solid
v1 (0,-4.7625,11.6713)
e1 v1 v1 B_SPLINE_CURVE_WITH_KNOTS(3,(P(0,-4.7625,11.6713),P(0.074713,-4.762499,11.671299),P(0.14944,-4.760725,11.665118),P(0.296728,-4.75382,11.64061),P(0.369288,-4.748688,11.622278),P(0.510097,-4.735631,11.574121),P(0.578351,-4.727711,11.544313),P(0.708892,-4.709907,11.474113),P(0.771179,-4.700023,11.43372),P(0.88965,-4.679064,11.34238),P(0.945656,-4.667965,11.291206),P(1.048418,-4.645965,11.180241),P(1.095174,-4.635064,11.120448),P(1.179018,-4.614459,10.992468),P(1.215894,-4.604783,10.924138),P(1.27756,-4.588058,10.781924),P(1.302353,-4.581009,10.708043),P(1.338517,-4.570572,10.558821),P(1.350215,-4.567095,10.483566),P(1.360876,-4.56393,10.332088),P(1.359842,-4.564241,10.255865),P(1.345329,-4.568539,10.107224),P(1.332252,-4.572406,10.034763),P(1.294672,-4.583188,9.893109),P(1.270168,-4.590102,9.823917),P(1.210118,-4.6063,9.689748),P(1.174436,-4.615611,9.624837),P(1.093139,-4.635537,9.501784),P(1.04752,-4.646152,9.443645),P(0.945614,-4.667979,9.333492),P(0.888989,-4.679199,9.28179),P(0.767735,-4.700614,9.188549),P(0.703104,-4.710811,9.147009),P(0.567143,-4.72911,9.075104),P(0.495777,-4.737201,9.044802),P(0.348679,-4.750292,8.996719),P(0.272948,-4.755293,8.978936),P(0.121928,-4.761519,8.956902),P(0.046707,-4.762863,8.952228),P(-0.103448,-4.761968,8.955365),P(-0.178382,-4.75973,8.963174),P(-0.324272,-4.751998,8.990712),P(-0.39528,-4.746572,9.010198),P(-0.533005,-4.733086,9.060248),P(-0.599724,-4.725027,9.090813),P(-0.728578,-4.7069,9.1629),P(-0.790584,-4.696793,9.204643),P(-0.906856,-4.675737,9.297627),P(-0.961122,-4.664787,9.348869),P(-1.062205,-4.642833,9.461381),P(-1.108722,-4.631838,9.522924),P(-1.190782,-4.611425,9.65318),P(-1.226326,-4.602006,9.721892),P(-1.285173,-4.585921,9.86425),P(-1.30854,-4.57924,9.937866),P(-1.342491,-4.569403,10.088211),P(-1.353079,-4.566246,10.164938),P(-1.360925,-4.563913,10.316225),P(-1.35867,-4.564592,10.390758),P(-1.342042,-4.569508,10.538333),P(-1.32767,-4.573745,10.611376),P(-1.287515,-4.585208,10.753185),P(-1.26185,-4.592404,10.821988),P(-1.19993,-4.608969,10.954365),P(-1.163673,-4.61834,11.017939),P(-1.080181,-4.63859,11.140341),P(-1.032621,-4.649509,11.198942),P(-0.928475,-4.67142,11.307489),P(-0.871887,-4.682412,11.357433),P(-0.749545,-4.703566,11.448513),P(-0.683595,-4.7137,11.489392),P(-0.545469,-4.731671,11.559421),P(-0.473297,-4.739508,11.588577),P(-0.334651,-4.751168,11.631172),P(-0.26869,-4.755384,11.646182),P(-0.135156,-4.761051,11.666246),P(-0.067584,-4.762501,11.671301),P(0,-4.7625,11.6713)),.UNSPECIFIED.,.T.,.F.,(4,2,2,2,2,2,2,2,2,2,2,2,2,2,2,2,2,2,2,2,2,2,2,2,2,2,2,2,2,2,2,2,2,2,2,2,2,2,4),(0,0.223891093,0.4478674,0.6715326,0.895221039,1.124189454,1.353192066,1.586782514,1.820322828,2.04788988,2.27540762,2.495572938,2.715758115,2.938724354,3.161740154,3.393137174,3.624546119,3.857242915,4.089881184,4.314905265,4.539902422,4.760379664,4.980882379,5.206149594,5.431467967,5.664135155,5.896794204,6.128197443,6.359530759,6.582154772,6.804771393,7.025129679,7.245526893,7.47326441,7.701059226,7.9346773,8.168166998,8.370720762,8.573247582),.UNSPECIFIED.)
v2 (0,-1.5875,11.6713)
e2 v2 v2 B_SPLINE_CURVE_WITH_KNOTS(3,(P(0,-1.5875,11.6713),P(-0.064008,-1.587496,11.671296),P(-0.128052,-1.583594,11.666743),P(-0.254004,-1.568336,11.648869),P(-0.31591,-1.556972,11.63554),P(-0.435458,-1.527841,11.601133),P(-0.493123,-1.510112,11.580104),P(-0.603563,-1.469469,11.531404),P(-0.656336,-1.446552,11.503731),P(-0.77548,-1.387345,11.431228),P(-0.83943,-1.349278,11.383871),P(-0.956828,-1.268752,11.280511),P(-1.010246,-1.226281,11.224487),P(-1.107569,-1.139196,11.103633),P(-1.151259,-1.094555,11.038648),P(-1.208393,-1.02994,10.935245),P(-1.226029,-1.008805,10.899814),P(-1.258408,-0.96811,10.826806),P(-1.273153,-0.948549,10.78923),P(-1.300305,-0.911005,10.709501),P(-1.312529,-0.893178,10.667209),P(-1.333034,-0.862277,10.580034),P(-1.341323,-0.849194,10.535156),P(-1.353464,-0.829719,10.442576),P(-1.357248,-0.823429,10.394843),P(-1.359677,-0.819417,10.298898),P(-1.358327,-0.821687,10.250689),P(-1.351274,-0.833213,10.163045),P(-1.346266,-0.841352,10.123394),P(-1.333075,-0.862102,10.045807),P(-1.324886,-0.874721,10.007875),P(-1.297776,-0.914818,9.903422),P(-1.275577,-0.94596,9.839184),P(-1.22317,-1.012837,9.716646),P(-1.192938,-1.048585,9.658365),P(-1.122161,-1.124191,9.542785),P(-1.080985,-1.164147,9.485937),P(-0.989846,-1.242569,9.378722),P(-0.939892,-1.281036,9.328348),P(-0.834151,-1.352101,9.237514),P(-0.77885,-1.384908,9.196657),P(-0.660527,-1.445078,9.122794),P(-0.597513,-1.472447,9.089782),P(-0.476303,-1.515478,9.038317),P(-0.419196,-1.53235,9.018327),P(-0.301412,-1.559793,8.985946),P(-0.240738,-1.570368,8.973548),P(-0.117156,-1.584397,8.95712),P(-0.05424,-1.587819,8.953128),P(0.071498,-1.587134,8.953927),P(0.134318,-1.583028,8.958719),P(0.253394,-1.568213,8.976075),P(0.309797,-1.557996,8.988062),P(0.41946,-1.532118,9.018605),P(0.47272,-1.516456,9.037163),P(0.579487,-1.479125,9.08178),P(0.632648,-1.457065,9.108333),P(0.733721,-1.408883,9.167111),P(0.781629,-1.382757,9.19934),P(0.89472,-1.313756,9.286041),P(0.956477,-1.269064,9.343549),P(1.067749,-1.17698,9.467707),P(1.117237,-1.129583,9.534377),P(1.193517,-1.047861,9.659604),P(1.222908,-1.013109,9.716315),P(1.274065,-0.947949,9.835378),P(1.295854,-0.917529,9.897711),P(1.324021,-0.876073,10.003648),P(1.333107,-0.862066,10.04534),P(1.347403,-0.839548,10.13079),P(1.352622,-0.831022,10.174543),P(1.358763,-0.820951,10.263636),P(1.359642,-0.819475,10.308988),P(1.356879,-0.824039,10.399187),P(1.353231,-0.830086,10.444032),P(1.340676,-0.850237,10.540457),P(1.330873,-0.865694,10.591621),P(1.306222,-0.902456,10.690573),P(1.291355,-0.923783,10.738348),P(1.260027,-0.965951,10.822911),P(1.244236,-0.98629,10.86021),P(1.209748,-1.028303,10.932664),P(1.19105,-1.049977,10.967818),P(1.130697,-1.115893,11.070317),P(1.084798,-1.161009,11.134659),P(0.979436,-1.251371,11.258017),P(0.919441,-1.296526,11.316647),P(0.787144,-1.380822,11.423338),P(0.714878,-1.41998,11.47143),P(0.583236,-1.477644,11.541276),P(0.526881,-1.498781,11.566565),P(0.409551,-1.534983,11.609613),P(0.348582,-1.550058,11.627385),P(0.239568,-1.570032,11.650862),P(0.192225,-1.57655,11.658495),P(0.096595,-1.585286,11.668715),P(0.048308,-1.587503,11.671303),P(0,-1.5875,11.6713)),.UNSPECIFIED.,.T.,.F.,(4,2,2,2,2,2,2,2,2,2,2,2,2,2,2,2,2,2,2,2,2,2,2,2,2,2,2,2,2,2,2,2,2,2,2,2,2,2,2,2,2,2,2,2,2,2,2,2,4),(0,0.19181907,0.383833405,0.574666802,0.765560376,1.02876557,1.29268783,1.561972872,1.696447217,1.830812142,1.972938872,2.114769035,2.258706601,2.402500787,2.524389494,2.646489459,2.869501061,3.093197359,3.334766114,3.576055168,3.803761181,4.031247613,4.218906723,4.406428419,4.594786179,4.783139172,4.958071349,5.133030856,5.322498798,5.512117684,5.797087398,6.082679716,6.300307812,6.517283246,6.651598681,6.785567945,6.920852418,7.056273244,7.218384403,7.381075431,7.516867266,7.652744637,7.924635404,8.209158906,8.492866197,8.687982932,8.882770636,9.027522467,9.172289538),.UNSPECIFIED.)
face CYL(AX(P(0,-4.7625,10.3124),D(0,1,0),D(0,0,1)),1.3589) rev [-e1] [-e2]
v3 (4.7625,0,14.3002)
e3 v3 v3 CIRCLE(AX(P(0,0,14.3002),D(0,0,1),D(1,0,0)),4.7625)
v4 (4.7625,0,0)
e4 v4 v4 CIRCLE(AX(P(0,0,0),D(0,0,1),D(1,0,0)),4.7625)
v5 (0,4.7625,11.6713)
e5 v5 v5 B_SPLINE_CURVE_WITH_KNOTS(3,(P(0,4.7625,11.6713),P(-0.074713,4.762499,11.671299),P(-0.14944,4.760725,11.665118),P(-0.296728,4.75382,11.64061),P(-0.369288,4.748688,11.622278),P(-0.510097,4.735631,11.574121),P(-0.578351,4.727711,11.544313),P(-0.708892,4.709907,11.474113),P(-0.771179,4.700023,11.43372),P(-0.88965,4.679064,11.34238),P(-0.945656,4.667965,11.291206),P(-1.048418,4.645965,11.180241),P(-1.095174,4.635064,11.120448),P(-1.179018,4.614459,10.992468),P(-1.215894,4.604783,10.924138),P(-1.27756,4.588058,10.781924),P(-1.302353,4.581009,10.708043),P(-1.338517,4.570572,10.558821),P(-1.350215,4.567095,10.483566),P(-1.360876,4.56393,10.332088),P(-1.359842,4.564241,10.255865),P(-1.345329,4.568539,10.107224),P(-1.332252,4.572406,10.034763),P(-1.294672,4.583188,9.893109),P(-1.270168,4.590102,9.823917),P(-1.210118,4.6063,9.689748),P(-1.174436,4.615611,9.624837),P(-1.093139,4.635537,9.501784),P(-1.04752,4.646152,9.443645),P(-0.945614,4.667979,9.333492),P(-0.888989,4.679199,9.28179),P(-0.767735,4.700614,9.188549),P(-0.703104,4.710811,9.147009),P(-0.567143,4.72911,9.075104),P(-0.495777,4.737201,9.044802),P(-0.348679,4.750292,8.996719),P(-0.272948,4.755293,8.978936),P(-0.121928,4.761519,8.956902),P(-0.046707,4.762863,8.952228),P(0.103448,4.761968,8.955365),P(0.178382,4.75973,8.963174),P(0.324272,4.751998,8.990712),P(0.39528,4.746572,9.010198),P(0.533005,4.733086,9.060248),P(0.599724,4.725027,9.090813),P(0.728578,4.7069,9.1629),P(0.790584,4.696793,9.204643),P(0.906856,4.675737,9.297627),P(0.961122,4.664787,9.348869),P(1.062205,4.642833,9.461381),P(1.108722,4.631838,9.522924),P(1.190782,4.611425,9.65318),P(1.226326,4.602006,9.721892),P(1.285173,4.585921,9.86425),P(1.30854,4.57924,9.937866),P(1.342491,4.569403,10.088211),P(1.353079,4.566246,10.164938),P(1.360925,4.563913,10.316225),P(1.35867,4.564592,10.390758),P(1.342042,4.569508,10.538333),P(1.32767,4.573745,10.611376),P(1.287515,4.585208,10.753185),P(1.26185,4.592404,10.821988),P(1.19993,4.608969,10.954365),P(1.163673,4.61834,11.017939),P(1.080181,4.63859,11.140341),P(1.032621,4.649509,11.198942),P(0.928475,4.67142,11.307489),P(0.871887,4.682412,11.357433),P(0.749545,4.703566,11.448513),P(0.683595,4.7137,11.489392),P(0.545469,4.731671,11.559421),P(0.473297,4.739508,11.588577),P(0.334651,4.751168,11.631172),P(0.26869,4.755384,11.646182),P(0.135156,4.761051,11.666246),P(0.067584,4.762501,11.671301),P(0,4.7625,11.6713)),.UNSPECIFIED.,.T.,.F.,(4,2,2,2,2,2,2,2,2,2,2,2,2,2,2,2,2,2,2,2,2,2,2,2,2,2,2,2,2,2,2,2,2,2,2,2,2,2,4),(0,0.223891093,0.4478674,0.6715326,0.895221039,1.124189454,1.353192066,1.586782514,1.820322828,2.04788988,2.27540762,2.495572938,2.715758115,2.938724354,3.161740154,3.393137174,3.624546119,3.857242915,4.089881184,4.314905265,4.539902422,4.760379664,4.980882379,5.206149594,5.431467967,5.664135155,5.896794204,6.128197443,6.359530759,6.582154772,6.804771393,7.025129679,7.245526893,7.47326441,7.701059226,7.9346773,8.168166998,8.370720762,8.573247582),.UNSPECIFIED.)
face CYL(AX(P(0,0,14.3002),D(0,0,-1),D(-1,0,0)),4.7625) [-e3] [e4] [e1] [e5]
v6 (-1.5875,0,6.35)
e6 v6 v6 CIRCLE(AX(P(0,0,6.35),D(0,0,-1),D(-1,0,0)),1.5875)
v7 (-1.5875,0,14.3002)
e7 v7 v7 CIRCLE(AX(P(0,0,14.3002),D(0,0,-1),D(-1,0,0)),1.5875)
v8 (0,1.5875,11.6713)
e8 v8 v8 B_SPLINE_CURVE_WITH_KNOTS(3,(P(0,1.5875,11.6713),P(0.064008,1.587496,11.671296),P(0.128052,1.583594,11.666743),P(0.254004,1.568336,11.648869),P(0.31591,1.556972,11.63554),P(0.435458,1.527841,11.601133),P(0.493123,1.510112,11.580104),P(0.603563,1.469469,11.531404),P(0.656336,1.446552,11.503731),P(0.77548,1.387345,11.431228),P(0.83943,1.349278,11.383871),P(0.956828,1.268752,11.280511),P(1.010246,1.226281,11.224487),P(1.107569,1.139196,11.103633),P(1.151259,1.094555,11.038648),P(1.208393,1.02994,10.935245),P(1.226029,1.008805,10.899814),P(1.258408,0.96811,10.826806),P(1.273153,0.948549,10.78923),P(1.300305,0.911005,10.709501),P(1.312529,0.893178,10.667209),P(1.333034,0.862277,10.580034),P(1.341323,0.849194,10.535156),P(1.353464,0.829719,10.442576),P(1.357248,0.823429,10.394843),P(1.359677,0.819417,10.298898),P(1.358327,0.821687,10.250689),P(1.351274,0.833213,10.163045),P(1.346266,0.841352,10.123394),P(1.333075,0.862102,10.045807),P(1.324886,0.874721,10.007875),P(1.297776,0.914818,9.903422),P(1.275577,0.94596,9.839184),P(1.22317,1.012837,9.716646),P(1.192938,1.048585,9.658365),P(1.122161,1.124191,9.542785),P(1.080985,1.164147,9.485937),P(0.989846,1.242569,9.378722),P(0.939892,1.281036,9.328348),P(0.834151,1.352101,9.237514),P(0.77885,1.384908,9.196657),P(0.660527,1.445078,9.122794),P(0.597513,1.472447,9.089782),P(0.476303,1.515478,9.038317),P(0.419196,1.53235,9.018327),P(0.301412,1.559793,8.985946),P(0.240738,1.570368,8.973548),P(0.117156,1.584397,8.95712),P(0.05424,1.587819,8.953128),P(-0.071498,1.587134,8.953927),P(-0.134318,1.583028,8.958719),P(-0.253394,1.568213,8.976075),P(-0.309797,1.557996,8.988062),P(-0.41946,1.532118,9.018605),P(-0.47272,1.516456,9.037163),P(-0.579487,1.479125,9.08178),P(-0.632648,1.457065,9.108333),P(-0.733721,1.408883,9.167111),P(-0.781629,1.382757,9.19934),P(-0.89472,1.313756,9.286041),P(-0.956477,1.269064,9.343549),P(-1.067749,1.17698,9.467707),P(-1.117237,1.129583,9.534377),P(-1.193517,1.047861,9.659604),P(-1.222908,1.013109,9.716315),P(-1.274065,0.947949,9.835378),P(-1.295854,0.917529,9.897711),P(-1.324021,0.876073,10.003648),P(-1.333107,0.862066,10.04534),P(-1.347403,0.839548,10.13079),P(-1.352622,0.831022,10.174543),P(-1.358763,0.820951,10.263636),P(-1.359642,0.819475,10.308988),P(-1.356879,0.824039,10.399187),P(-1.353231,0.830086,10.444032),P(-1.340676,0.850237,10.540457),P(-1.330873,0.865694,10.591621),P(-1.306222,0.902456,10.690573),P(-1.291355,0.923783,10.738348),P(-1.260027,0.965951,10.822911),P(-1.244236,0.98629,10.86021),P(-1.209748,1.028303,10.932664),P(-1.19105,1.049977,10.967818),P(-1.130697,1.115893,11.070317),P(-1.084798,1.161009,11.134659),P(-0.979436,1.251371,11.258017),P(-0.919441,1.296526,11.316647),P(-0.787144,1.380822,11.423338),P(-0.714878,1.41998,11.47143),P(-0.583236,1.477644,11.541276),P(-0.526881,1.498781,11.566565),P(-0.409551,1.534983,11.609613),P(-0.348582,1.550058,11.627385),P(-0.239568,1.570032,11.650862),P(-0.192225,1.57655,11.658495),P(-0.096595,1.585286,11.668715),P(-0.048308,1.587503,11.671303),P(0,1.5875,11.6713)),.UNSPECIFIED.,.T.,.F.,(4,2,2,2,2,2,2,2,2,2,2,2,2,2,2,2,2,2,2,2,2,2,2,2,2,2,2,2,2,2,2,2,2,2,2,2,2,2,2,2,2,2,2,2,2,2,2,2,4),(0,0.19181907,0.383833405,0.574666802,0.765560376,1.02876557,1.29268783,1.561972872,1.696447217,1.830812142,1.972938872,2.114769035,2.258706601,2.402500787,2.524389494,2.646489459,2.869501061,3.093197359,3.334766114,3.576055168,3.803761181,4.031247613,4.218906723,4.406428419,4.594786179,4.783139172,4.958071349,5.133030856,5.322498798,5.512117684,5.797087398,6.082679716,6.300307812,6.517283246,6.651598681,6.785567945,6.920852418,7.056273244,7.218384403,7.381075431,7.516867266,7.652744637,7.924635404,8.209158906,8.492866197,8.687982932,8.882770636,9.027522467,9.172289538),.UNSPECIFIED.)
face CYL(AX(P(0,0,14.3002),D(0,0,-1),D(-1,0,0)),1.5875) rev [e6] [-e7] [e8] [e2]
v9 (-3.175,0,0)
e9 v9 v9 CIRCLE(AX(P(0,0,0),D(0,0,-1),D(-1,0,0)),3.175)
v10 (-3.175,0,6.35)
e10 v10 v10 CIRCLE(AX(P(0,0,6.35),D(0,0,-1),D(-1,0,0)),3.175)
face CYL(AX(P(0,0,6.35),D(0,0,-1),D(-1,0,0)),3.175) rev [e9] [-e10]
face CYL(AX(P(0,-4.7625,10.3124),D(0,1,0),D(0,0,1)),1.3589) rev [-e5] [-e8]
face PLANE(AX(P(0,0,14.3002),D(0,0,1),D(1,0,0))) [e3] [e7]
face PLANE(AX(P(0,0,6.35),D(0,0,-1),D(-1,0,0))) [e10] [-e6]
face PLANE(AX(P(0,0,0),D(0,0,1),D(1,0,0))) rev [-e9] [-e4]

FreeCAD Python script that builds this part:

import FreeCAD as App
import Part
import Sketcher
Q = App.Units.Quantity

doc = App.newDocument("Part")
body = doc.addObject("PartDesign::Body", "Body")

# Sketch on XY plane
sketch1 = body.newObject("Sketcher::SketchObject", "Sketch")
sketch1.AttachmentSupport = (doc.getObject("XY_Plane"), [""])
sketch1.MapMode = "FlatFace"
sketch1.addGeometry(Part.Circle(App.Vector(0, 0, 0), App.Vector(0, 0, 1), 4.8), False)
sketch1.addConstraint([
    Sketcher.Constraint("Coincident", 0, 3, -1, 1),
    Sketcher.Constraint("Diameter", 0, Q("0.375 in")),
])
pad1 = body.newObject("PartDesign::Pad", "Pad")
pad1.Profile = sketch1
pad1.Length = Q("0.563 in")

# Sketch on XY plane
sketch2 = body.newObject("Sketcher::SketchObject", "Sketch001")
sketch2.AttachmentSupport = (doc.getObject("XY_Plane"), [""])
sketch2.MapMode = "FlatFace"
sketch2.addGeometry(Part.Circle(App.Vector(0, 0, 0), App.Vector(0, 0, 1), 1.6), False)
sketch2.addConstraint([
    Sketcher.Constraint("Coincident", 0, 3, -1, 1),
    Sketcher.Constraint("Diameter", 0, Q("0.125 in")),
])
pocket1 = body.newObject("PartDesign::Pocket", "Pocket")
pocket1.Profile = sketch2
pocket1.Type = "ThroughAll"
pocket1.Reversed = True

# Sketch on XY plane
sketch3 = body.newObject("Sketcher::SketchObject", "Sketch002")
sketch3.AttachmentSupport = (doc.getObject("XY_Plane"), [""])
sketch3.MapMode = "FlatFace"
sketch3.addGeometry([
    Part.Circle(App.Vector(0, 0, 0), App.Vector(0, 0, 1), 3.2),
    Part.Circle(App.Vector(0, 0, 0), App.Vector(0, 0, 1), 1.6),
], False)
sketch3.addConstraint([
    Sketcher.Constraint("Coincident", 0, 3, -1, 1),
    Sketcher.Constraint("Coincident", 1, 3, -1, 1),
    Sketcher.Constraint("Diameter", 0, Q("0.25 in")),
    Sketcher.Constraint("Diameter", 1, Q("0.125 in")),
])
pocket2 = body.newObject("PartDesign::Pocket", "Pocket001")
pocket2.Profile = sketch3
pocket2.Length = Q("0.25 in")
pocket2.Reversed = True

# Sketch on XZ plane
sketch4 = body.newObject("Sketcher::SketchObject", "Sketch003")
sketch4.AttachmentSupport = (doc.getObject("XZ_Plane"), [""])
sketch4.MapMode = "FlatFace"
sketch4.AttachmentOffset = App.Placement(App.Vector(0, 0, -0.1875 * 25.4), App.Rotation())
sketch4.addGeometry(Part.Circle(App.Vector(0, 10.3, 0), App.Vector(0, 0, 1), 1.4), False)
sketch4.addConstraint([
    Sketcher.Constraint("PointOnObject", 0, 3, -2),
    Sketcher.Constraint("Diameter", 0, Q("0.107 in")),
    Sketcher.Constraint("DistanceY", -1, 1, 0, 3, Q("0.406 in")),
])
pocket3 = body.newObject("PartDesign::Pocket", "Pocket002")
pocket3.Profile = sketch4
pocket3.Type = "ThroughAll"
pocket3.Reversed = True

doc.recompute()
